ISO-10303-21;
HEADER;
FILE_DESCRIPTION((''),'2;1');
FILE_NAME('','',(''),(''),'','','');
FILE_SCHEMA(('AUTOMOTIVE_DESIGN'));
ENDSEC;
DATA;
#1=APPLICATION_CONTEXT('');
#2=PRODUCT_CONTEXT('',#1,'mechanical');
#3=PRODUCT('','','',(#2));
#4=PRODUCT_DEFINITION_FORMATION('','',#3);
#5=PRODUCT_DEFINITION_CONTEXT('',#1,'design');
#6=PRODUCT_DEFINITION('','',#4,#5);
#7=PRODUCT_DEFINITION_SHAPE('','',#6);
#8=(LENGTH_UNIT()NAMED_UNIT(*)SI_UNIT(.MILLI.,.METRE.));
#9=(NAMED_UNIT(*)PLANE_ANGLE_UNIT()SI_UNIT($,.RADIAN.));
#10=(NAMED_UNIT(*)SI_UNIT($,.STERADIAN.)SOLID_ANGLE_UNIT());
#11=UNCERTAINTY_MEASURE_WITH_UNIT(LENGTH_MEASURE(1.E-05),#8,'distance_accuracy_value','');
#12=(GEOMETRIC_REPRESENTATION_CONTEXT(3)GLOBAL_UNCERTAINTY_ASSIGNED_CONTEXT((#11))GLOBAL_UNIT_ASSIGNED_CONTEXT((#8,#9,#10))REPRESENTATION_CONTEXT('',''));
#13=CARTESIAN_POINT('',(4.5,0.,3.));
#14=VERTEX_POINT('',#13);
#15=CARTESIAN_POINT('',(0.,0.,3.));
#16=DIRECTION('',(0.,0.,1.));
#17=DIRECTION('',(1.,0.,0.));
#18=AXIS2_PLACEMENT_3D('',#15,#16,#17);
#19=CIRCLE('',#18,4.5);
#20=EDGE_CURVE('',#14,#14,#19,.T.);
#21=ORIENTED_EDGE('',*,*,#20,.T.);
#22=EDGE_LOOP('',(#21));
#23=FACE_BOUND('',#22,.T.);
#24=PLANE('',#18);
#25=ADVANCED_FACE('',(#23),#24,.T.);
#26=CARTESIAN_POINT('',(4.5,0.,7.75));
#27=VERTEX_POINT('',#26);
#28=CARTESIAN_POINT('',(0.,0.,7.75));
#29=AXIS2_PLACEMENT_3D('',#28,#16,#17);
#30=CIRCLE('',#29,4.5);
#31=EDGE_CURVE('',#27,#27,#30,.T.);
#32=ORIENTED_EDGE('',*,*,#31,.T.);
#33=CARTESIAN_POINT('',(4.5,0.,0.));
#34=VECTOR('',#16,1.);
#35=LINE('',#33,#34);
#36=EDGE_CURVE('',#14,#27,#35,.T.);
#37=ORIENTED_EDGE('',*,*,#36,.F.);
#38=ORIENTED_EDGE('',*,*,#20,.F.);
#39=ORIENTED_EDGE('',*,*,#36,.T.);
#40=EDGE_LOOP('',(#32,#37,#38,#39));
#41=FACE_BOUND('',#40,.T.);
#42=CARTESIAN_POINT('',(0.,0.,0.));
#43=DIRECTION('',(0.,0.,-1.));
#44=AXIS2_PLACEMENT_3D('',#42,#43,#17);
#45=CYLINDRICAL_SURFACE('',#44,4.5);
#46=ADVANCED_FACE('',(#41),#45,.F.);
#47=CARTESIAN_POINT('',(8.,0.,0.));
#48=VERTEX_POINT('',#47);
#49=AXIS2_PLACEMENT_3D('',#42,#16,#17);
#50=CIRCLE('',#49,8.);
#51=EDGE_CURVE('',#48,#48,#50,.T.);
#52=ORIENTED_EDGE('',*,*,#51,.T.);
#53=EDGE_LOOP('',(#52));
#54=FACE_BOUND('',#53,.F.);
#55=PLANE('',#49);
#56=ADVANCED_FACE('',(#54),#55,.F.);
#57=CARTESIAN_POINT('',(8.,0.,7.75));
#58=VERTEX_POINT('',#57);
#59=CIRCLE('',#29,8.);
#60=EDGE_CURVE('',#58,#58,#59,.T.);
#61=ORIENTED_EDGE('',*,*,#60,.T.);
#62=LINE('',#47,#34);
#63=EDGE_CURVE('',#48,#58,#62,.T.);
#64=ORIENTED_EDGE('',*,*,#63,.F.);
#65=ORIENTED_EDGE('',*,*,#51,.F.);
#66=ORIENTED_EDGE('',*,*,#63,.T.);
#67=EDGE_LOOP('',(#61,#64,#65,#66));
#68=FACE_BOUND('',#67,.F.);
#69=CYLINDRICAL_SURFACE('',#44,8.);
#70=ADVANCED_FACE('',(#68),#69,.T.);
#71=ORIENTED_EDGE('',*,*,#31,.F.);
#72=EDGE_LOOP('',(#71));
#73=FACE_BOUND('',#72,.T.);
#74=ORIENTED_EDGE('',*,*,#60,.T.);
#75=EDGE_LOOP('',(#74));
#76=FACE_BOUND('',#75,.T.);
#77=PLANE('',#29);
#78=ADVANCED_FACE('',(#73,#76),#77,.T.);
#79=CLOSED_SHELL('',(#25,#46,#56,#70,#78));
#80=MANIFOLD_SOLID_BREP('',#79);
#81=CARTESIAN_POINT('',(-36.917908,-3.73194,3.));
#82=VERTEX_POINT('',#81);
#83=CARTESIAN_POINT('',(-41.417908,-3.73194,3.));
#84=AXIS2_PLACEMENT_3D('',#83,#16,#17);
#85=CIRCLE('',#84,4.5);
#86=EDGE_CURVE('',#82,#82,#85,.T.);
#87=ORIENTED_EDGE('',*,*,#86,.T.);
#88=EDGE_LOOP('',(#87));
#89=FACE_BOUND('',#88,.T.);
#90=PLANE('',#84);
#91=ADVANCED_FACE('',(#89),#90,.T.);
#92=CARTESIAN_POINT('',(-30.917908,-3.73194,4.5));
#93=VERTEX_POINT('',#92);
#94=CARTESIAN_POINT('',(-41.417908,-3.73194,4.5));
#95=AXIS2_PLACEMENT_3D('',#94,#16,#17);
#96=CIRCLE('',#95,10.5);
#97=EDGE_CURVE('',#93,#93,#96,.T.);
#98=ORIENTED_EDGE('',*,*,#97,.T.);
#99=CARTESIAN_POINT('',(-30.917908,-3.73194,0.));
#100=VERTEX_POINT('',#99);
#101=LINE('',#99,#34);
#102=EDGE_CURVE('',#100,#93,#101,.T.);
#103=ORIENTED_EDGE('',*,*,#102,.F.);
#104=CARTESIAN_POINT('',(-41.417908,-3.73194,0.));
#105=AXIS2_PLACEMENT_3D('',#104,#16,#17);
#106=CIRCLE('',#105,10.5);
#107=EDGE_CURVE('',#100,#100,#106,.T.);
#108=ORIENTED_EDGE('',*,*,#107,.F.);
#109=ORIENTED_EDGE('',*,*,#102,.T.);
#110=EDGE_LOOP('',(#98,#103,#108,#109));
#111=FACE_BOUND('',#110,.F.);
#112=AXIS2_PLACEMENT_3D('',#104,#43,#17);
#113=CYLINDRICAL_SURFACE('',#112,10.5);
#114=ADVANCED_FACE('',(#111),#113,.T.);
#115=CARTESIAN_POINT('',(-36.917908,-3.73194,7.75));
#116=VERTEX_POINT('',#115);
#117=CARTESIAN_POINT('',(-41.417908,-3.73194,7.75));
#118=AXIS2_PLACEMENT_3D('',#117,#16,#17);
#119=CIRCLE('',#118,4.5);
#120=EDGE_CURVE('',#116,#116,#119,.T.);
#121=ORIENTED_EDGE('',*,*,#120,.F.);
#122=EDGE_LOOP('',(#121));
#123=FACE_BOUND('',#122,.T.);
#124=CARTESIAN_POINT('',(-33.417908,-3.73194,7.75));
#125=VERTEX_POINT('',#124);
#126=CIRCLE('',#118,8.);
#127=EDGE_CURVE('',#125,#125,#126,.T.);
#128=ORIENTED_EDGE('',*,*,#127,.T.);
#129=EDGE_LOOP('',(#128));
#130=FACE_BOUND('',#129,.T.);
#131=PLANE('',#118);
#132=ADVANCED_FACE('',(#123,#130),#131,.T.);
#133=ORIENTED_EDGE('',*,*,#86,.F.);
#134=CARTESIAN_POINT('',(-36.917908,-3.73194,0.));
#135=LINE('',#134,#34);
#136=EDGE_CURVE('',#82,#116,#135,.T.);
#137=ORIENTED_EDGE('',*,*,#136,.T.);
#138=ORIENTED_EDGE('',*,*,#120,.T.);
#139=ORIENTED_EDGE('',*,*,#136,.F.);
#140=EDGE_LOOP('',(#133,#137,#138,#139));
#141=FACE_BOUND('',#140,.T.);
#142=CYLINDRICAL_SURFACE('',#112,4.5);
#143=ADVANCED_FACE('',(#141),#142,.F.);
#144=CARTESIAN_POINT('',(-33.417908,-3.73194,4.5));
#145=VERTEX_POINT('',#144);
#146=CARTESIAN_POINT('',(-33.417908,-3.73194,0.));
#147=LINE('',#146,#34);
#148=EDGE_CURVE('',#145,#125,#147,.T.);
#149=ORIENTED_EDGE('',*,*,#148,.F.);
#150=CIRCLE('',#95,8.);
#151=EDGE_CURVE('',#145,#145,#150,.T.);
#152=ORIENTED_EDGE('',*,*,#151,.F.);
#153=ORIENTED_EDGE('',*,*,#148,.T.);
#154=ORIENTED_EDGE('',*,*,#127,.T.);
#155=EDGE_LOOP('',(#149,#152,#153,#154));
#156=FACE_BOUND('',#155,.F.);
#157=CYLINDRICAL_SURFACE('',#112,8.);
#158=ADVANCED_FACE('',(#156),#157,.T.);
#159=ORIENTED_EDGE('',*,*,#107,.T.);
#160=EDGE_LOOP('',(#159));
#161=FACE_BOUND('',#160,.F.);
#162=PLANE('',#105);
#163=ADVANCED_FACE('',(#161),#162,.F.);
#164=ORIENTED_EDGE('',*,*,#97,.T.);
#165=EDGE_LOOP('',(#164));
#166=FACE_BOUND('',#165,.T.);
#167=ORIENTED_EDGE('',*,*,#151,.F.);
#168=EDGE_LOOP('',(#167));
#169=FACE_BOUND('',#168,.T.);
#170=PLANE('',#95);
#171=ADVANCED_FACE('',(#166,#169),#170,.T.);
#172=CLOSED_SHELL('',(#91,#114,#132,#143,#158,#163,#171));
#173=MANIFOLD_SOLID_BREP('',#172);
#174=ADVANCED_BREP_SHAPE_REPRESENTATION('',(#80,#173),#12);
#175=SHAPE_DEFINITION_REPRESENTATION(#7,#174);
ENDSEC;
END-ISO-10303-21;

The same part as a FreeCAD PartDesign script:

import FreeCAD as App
import Part
import Sketcher
from FreeCAD import Vector
Q = App.Units.Quantity

doc = App.newDocument("Part")
body = doc.addObject("PartDesign::Body", "Body")
body.AllowCompound = True

sketch1 = body.newObject("Sketcher::SketchObject", "Sketch")
sketch1.AttachmentSupport = (doc.getObject("XY_Plane"), [""])
sketch1.MapMode = "FlatFace"
sketch1.addGeometry(Part.Circle(Vector(0, 0, 0), Vector(0, 0, 1), 8), False)
sketch1.addGeometry(Part.Circle(Vector(0, 0, 0), Vector(0, 0, 1), 4.5), False)
sketch1.addGeometry(Part.Circle(Vector(-41.4, -3.7, 0), Vector(0, 0, 1), 8), False)
sketch1.addGeometry(Part.Circle(Vector(-41.4, -3.7, 0), Vector(0, 0, 1), 4.5), False)
sketch1.addConstraint(Sketcher.Constraint("Coincident", 0, 3, -1, 1))
sketch1.addConstraint(Sketcher.Constraint("Coincident", 1, 3, -1, 1))
sketch1.addConstraint(Sketcher.Constraint("Coincident", 3, 3, 2, 3))
sketch1.addConstraint(Sketcher.Constraint("Equal", 0, 2))
sketch1.addConstraint(Sketcher.Constraint("Equal", 1, 3))
sketch1.addConstraint(Sketcher.Constraint("Diameter", 0, Q("16 mm")))
sketch1.addConstraint(Sketcher.Constraint("Diameter", 1, Q("9 mm")))
sketch1.addConstraint(Sketcher.Constraint("DistanceY", 2, 3, -1, 1, Q("3.73194 mm")))
sketch1.addConstraint(Sketcher.Constraint("DistanceX", 2, 3, -1, 1, Q("41.417908 mm")))
pad1 = body.newObject("PartDesign::Pad", "Pad")
pad1.Profile = sketch1
pad1.Length = 7.75

sketch2 = body.newObject("Sketcher::SketchObject", "Sketch001")
sketch2.AttachmentSupport = (doc.getObject("XY_Plane"), [""])
sketch2.MapMode = "FlatFace"
sketch2.addGeometry(Part.Circle(Vector(0, 0, 0), Vector(0, 0, 1), 4.5), False)
sketch2.addGeometry(Part.Circle(Vector(-41.4, -3.7, 0), Vector(0, 0, 1), 4.5), False)
sketch2.addConstraint(Sketcher.Constraint("Coincident", 0, 3, -1, 1))
sketch2.addConstraint(Sketcher.Constraint("Equal", 0, 1))
sketch2.addConstraint(Sketcher.Constraint("Diameter", 0, Q("9 mm")))
sketch2.addConstraint(Sketcher.Constraint("DistanceY", 1, 3, -1, 1, Q("3.73194 mm")))
sketch2.addConstraint(Sketcher.Constraint("DistanceX", 1, 3, -1, 1, Q("41.417908 mm")))
pad2 = body.newObject("PartDesign::Pad", "Pad001")
pad2.Profile = sketch2
pad2.Length = 3

sketch3 = body.newObject("Sketcher::SketchObject", "Sketch002")
sketch3.AttachmentSupport = (doc.getObject("XY_Plane"), [""])
sketch3.MapMode = "FlatFace"
sketch3.addGeometry(Part.Circle(Vector(-41, -4, 0), Vector(0, 0, 1), 10), False)
sketch3.addGeometry(Part.Circle(Vector(-41, -4, 0), Vector(0, 0, 1), 8), False)
sketch3.addConstraint(Sketcher.Constraint("Coincident", 1, 3, 0, 3))
sketch3.addConstraint(Sketcher.Constraint("Diameter", 0, Q("21 mm")))
sketch3.addConstraint(Sketcher.Constraint("Diameter", 1, Q("16 mm")))
sketch3.addConstraint(Sketcher.Constraint("DistanceY", 0, 3, -1, 1, Q("3.73194 mm")))
sketch3.addConstraint(Sketcher.Constraint("DistanceX", 0, 3, -1, 1, Q("41.417908 mm")))
pad3 = body.newObject("PartDesign::Pad", "Pad002")
pad3.Profile = sketch3
pad3.Length = 4.5

doc.recompute()
